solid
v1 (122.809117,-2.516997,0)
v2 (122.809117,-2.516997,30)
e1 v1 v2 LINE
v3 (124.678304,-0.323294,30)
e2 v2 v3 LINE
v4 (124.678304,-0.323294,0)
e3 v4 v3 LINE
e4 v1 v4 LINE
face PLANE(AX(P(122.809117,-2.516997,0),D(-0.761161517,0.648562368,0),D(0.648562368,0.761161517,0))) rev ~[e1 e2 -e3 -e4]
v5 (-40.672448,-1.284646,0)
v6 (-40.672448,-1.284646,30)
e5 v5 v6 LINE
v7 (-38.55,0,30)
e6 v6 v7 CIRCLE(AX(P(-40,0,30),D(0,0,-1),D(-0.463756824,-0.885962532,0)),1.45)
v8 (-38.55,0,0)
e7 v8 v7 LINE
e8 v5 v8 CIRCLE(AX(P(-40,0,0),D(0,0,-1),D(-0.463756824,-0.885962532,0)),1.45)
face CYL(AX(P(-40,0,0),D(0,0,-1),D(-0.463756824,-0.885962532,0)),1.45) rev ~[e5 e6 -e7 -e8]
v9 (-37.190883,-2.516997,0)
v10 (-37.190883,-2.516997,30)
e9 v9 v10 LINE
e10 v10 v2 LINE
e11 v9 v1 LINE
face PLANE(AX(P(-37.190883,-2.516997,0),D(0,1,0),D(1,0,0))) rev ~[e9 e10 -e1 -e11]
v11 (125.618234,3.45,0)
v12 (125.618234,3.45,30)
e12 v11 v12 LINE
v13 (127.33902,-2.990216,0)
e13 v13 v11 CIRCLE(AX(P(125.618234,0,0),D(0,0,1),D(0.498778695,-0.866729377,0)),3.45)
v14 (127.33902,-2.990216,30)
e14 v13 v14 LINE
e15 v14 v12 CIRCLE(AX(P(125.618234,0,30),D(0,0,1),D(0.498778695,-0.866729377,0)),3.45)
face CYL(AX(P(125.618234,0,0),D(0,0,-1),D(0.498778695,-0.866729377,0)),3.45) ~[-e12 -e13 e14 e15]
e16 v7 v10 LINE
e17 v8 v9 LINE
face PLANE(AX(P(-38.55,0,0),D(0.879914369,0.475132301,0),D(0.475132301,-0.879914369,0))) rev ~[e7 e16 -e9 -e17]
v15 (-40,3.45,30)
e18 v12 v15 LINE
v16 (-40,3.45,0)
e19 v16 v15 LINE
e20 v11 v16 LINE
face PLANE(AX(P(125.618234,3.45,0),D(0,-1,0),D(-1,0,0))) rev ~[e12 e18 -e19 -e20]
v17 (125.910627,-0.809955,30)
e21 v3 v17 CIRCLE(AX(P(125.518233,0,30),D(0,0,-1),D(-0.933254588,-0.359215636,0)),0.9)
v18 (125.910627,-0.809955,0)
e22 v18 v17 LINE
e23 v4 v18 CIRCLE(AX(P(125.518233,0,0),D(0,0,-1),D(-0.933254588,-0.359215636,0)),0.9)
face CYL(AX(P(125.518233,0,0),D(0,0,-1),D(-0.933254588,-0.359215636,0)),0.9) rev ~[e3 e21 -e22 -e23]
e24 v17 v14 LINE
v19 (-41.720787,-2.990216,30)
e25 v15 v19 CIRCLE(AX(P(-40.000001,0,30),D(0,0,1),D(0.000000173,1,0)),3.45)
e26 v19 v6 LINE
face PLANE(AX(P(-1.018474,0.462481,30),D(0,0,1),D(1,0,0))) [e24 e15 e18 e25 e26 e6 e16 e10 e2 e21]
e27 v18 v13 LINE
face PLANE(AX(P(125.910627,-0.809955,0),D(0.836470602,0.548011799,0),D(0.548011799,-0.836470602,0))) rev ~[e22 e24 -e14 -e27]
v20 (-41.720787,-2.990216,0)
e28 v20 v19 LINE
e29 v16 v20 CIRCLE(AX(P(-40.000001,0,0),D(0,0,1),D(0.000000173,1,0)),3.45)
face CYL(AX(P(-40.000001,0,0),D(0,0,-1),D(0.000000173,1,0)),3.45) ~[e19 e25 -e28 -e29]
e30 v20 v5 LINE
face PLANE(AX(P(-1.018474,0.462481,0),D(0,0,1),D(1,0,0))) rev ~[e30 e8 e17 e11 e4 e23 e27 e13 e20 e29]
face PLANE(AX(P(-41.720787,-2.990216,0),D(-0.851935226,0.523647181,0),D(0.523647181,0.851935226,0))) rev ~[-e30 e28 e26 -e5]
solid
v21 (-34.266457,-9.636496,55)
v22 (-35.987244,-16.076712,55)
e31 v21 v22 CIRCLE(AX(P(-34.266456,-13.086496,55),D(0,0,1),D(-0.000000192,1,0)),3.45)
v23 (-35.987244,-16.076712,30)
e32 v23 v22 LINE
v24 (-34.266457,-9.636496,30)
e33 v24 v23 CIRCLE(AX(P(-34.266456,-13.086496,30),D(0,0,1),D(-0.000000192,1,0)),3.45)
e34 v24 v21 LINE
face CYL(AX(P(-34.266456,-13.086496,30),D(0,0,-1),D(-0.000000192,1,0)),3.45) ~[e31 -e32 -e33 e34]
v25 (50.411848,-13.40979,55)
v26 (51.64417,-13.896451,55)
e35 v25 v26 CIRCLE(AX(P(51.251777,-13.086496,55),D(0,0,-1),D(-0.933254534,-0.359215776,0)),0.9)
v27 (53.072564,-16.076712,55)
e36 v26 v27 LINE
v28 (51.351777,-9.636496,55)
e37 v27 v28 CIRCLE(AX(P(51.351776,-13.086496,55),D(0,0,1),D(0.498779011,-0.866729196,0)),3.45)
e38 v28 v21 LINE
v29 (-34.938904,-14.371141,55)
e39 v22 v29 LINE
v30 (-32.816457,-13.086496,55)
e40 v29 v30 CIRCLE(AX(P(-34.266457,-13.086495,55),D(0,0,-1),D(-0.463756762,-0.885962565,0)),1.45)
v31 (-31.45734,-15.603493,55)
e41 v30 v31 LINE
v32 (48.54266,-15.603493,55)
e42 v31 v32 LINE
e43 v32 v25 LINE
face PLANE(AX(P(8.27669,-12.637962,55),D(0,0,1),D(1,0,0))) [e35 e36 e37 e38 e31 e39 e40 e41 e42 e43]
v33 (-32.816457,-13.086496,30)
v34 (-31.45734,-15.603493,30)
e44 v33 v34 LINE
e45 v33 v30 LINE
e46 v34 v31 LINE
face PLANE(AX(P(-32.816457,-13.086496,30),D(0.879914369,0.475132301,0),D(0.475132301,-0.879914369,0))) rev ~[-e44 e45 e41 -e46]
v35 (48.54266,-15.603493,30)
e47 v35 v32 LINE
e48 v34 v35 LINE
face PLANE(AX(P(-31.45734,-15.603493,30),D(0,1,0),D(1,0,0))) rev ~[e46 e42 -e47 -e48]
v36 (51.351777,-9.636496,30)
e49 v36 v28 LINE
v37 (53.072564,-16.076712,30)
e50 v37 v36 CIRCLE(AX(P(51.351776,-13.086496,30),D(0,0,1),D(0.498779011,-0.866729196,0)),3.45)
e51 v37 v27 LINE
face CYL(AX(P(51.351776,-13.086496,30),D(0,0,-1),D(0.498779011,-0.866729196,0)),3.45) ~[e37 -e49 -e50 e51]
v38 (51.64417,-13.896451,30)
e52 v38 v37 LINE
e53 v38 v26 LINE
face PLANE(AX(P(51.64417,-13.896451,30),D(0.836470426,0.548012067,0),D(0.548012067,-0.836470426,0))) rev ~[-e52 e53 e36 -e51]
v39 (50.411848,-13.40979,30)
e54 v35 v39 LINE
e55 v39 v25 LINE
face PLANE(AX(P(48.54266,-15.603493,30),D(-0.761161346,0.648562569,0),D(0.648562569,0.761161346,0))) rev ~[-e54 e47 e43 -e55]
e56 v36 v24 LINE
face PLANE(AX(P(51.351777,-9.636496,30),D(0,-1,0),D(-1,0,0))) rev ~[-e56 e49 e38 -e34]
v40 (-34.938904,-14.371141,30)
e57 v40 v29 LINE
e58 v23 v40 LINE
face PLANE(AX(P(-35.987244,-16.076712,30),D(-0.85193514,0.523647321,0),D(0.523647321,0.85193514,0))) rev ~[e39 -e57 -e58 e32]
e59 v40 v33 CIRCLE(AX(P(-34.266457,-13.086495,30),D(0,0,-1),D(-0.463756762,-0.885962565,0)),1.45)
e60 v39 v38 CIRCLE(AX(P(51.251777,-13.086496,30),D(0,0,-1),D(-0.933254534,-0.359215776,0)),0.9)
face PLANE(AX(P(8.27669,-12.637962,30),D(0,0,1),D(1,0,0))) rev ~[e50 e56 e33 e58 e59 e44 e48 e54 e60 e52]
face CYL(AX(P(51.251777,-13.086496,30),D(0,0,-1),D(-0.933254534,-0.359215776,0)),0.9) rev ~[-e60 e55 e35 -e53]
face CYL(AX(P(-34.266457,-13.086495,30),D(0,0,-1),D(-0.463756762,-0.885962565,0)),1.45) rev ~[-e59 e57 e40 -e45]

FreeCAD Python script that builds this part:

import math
import FreeCAD as App
import Part
import Sketcher

V = App.Vector

doc = App.newDocument("Part")
body = doc.addObject("PartDesign::Body", "Body")

# Sketch on XY plane
sketch1 = body.newObject("Sketcher::SketchObject", "Sketch")
sketch1.AttachmentSupport = (doc.getObject("XY_Plane"), [""])
sketch1.MapMode = "FlatFace"
sketch1.addGeometry([
    Part.ArcOfCircle(Part.Circle(V(-40, 0, 0), V(0, 0, 1), 1.45), math.radians(-0.000001), math.radians(242.370205)),  # 0
    Part.LineSegment(V(-38.55, 0, 0), V(-37.190883, -2.516997, 0)),  # 1
    Part.LineSegment(V(-37.190883, -2.516997, 0), V(122.809117, -2.516997, 0)),  # 2
    Part.LineSegment(V(122.809117, -2.516997, 0), V(124.678304, -0.323294, 0)),  # 3
    Part.ArcOfCircle(Part.Circle(V(125.518233, 0, 0), V(0, 0, 1), 0.9), math.radians(-64.1515), math.radians(201.052033)),  # 4
    Part.LineSegment(V(125.910627, -0.809955, 0), V(127.33902, -2.990216, 0)),  # 5
    Part.ArcOfCircle(Part.Circle(V(125.618234, 0, 0), V(0, 0, 1), 3.45), math.radians(-60.080768), math.radians(89.999993)),  # 6
    Part.LineSegment(V(125.618234, 3.45, 0), V(-40, 3.45, 0)),  # 7
    Part.ArcOfCircle(Part.Circle(V(-40.000001, 0, 0), V(0, 0, 1), 3.45), math.radians(89.99999), math.radians(240.080768)),  # 8
    Part.LineSegment(V(-41.720787, -2.990216, 0), V(-40.672448, -1.284646, 0)),  # 9
], False)
sketch1.addConstraint([
    Sketcher.Constraint("Coincident", 0, 1, 1, 1),
    Sketcher.Constraint("Coincident", 1, 2, 2, 1),
    Sketcher.Constraint("Coincident", 2, 2, 3, 1),
    Sketcher.Constraint("Coincident", 3, 2, 4, 2),
    Sketcher.Constraint("Coincident", 4, 1, 5, 1),
    Sketcher.Constraint("Coincident", 5, 2, 6, 1),
    Sketcher.Constraint("Tangent", 6, 2, 7, 1),
    Sketcher.Constraint("Tangent", 7, 2, 8, 1),
    Sketcher.Constraint("Coincident", 8, 2, 9, 1),
    Sketcher.Constraint("Coincident", 9, 2, 0, 2),
    Sketcher.Constraint("Horizontal", 2),
    Sketcher.Constraint("Horizontal", 7),
    Sketcher.Constraint("Coincident", 8, 3, 0, 3),
    Sketcher.Constraint("Equal", 6, 8),
    Sketcher.Constraint("PointOnObject", 0, 3, -1),
    Sketcher.Constraint("PointOnObject", 4, 3, -1),
    Sketcher.Constraint("PointOnObject", 0, 1, -1),
    Sketcher.Constraint("Horizontal", 5, 2, 8, 2),
    Sketcher.Constraint("Radius", 4, 0.9),
    Sketcher.Constraint("DistanceX", 2, 1, 2, 2, 160.0),
    Sketcher.Constraint("Radius", 0, 1.45),
    Sketcher.Constraint("Radius", 6, 3.45),
    Sketcher.Constraint("DistanceX", 0, 3, -1, 1, 40.0),
    Sketcher.Constraint("DistanceX", 4, 3, 6, 3, 0.1),
    Sketcher.Constraint("Distance", 5, 2.6065),
    Sketcher.Constraint("DistanceX", 7, 2, 7, 1, 165.618234),
    Sketcher.Constraint("DistanceX", -1, 1, 5, 2, 127.33902),
    Sketcher.Constraint("DistanceX", 9, 2, -1, 1, 40.672448),
    Sketcher.Constraint("DistanceX", 3, 2, 4, 3, 0.839929),
    Sketcher.Constraint("DistanceX", 2, 2, 4, 1, 3.10151),
    Sketcher.Constraint("DistanceY", 2, 2, 4, 1, 1.707042),
])
pad1 = body.newObject("PartDesign::Pad", "Pad")
pad1.Profile = sketch1
pad1.Length = 30
body2 = doc.addObject("PartDesign::Body", "Body001")

# Sketch on XY plane
sketch2 = body2.newObject("Sketcher::SketchObject", "Sketch001")
sketch2.AttachmentSupport = (doc.getObject("XY_Plane001"), [""])
sketch2.MapMode = "FlatFace"
sketch2.AttachmentOffset = App.Placement(V(0, 0, 30), App.Rotation())
sketch2.addGeometry([
    Part.ArcOfCircle(Part.Circle(V(51.351776, -13.086496, 0), V(0, 0, 1), 3.45), math.radians(-60.080747), math.radians(89.999989)),  # 0
    Part.LineSegment(V(51.351777, -9.636496, 0), V(-34.266457, -9.636496, 0)),  # 1
    Part.ArcOfCircle(Part.Circle(V(-34.266456, -13.086496, 0), V(0, 0, 1), 3.45), math.radians(90.000011), math.radians(240.080747)),  # 2
    Part.LineSegment(V(-35.987244, -16.076712, 0), V(-34.938904, -14.371141, 0)),  # 3
    Part.ArcOfCircle(Part.Circle(V(-34.266457, -13.086495, 0), V(0, 0, 1), 1.45), math.radians(-0.000021), math.radians(242.370209)),  # 4
    Part.LineSegment(V(-32.816457, -13.086496, 0), V(-31.45734, -15.603493, 0)),  # 5
    Part.LineSegment(V(-31.45734, -15.603493, 0), V(48.54266, -15.603493, 0)),  # 6
    Part.LineSegment(V(48.54266, -15.603493, 0), V(50.411848, -13.40979, 0)),  # 7
    Part.ArcOfCircle(Part.Circle(V(51.251777, -13.086496, 0), V(0, 0, 1), 0.9), math.radians(-64.15154), math.radians(201.052042)),  # 8
    Part.LineSegment(V(51.64417, -13.896451, 0), V(53.072564, -16.076712, 0)),  # 9
], False)
sketch2.addConstraint([
    Sketcher.Constraint("Tangent", 0, 2, 1, 1),
    Sketcher.Constraint("Tangent", 1, 2, 2, 1),
    Sketcher.Constraint("Coincident", 2, 2, 3, 1),
    Sketcher.Constraint("Coincident", 3, 2, 4, 2),
    Sketcher.Constraint("Coincident", 4, 1, 5, 1),
    Sketcher.Constraint("Coincident", 5, 2, 6, 1),
    Sketcher.Constraint("Coincident", 6, 2, 7, 1),
    Sketcher.Constraint("Coincident", 7, 2, 8, 2),
    Sketcher.Constraint("Coincident", 8, 1, 9, 1),
    Sketcher.Constraint("Coincident", 9, 2, 0, 1),
    Sketcher.Constraint("Horizontal", 1),
    Sketcher.Constraint("Horizontal", 6),
    Sketcher.Constraint("Coincident", 4, 3, 2, 3),
    Sketcher.Constraint("Equal", 0, 2),
    Sketcher.Constraint("Horizontal", 4, 3, 8, 3),
    Sketcher.Constraint("Horizontal", 8, 3, 4, 1),
    Sketcher.Constraint("Horizontal", 2, 2, 9, 2),
    Sketcher.Constraint("Radius", 8, 0.9),
    Sketcher.Constraint("DistanceX", 6, 1, 6, 2, 80.0),
    Sketcher.Constraint("Radius", 0, 3.45),
    Sketcher.Constraint("Radius", 4, 1.45),
    Sketcher.Constraint("DistanceX", 8, 3, 0, 3, 0.099999),
    Sketcher.Constraint("Distance", 9, 2.606501),
    Sketcher.Constraint("DistanceX", 1, 2, 1, 1, 85.618234),
    Sketcher.Constraint("DistanceY", 3, 2, -1, 1, 14.371141),
    Sketcher.Constraint("DistanceX", 5, 2, -1, 1, 31.45734),
    Sketcher.Constraint("DistanceY", 7, 2, -1, 1, 13.40979),
    Sketcher.Constraint("DistanceX", -1, 1, 8, 1, 51.64417),
    Sketcher.Constraint("DistanceY", 8, 1, -1, 1, 13.896451),
    Sketcher.Constraint("DistanceX", 2, 2, 8, 3, 87.239021),
    Sketcher.Constraint("DistanceY", 2, 2, 5, 2, 0.473219),
])
pad2 = body2.newObject("PartDesign::Pad", "Pad001")
pad2.Profile = sketch2
pad2.Length = 25

doc.recompute()
